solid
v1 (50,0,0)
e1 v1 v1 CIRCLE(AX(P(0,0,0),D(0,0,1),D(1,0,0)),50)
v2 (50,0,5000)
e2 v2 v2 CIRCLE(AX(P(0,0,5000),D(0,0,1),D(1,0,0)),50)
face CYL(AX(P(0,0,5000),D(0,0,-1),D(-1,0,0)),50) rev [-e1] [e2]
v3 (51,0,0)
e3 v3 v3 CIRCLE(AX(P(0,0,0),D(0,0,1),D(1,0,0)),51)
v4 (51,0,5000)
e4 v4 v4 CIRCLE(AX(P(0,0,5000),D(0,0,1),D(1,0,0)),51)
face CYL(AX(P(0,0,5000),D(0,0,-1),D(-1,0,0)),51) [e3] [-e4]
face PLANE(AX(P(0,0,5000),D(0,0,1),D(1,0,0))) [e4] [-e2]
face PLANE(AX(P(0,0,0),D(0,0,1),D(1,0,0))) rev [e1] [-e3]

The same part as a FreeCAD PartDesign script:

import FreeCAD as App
import Part
import Sketcher
Q = App.Units.Quantity

doc = App.newDocument("Part")
params = doc.addObject("Spreadsheet::Sheet", "Params")
for row, (alias, value) in enumerate([
    ("sketch1_diameter", "102 mm"),
    ("sketch1_diameter2", "100 mm"),
    ("pad1_length", "5000 mm"),
], start=1):
    params.set(f"A{row}", alias)
    params.set(f"B{row}", "=" + value)
    params.setAlias(f"B{row}", alias)

body = doc.addObject("PartDesign::Body", "Body")

# Sketch on XY plane
sketch1 = body.newObject("Sketcher::SketchObject", "Sketch")
sketch1.AttachmentSupport = (doc.getObject("XY_Plane"), [""])
sketch1.MapMode = "FlatFace"
sketch1.addGeometry([
    Part.Circle(App.Vector(0, 0, 0), App.Vector(0, 0, 1), 51),
    Part.Circle(App.Vector(0, 0, 0), App.Vector(0, 0, 1), 50),
], False)
sketch1.addConstraint([
    Sketcher.Constraint("Coincident", 0, 3, -1, 1),
    Sketcher.Constraint("Coincident", 1, 3, -1, 1),
    Sketcher.Constraint("Diameter", 0, Q("102 mm")),
    Sketcher.Constraint("Diameter", 1, Q("100 mm")),
])
sketch1.setExpression("Constraints[2]", "Params.sketch1_diameter")
sketch1.setExpression("Constraints[3]", "Params.sketch1_diameter2")
pad1 = body.newObject("PartDesign::Pad", "Pad")
pad1.Profile = sketch1
pad1.setExpression("Length", "Params.pad1_length")

doc.recompute()
